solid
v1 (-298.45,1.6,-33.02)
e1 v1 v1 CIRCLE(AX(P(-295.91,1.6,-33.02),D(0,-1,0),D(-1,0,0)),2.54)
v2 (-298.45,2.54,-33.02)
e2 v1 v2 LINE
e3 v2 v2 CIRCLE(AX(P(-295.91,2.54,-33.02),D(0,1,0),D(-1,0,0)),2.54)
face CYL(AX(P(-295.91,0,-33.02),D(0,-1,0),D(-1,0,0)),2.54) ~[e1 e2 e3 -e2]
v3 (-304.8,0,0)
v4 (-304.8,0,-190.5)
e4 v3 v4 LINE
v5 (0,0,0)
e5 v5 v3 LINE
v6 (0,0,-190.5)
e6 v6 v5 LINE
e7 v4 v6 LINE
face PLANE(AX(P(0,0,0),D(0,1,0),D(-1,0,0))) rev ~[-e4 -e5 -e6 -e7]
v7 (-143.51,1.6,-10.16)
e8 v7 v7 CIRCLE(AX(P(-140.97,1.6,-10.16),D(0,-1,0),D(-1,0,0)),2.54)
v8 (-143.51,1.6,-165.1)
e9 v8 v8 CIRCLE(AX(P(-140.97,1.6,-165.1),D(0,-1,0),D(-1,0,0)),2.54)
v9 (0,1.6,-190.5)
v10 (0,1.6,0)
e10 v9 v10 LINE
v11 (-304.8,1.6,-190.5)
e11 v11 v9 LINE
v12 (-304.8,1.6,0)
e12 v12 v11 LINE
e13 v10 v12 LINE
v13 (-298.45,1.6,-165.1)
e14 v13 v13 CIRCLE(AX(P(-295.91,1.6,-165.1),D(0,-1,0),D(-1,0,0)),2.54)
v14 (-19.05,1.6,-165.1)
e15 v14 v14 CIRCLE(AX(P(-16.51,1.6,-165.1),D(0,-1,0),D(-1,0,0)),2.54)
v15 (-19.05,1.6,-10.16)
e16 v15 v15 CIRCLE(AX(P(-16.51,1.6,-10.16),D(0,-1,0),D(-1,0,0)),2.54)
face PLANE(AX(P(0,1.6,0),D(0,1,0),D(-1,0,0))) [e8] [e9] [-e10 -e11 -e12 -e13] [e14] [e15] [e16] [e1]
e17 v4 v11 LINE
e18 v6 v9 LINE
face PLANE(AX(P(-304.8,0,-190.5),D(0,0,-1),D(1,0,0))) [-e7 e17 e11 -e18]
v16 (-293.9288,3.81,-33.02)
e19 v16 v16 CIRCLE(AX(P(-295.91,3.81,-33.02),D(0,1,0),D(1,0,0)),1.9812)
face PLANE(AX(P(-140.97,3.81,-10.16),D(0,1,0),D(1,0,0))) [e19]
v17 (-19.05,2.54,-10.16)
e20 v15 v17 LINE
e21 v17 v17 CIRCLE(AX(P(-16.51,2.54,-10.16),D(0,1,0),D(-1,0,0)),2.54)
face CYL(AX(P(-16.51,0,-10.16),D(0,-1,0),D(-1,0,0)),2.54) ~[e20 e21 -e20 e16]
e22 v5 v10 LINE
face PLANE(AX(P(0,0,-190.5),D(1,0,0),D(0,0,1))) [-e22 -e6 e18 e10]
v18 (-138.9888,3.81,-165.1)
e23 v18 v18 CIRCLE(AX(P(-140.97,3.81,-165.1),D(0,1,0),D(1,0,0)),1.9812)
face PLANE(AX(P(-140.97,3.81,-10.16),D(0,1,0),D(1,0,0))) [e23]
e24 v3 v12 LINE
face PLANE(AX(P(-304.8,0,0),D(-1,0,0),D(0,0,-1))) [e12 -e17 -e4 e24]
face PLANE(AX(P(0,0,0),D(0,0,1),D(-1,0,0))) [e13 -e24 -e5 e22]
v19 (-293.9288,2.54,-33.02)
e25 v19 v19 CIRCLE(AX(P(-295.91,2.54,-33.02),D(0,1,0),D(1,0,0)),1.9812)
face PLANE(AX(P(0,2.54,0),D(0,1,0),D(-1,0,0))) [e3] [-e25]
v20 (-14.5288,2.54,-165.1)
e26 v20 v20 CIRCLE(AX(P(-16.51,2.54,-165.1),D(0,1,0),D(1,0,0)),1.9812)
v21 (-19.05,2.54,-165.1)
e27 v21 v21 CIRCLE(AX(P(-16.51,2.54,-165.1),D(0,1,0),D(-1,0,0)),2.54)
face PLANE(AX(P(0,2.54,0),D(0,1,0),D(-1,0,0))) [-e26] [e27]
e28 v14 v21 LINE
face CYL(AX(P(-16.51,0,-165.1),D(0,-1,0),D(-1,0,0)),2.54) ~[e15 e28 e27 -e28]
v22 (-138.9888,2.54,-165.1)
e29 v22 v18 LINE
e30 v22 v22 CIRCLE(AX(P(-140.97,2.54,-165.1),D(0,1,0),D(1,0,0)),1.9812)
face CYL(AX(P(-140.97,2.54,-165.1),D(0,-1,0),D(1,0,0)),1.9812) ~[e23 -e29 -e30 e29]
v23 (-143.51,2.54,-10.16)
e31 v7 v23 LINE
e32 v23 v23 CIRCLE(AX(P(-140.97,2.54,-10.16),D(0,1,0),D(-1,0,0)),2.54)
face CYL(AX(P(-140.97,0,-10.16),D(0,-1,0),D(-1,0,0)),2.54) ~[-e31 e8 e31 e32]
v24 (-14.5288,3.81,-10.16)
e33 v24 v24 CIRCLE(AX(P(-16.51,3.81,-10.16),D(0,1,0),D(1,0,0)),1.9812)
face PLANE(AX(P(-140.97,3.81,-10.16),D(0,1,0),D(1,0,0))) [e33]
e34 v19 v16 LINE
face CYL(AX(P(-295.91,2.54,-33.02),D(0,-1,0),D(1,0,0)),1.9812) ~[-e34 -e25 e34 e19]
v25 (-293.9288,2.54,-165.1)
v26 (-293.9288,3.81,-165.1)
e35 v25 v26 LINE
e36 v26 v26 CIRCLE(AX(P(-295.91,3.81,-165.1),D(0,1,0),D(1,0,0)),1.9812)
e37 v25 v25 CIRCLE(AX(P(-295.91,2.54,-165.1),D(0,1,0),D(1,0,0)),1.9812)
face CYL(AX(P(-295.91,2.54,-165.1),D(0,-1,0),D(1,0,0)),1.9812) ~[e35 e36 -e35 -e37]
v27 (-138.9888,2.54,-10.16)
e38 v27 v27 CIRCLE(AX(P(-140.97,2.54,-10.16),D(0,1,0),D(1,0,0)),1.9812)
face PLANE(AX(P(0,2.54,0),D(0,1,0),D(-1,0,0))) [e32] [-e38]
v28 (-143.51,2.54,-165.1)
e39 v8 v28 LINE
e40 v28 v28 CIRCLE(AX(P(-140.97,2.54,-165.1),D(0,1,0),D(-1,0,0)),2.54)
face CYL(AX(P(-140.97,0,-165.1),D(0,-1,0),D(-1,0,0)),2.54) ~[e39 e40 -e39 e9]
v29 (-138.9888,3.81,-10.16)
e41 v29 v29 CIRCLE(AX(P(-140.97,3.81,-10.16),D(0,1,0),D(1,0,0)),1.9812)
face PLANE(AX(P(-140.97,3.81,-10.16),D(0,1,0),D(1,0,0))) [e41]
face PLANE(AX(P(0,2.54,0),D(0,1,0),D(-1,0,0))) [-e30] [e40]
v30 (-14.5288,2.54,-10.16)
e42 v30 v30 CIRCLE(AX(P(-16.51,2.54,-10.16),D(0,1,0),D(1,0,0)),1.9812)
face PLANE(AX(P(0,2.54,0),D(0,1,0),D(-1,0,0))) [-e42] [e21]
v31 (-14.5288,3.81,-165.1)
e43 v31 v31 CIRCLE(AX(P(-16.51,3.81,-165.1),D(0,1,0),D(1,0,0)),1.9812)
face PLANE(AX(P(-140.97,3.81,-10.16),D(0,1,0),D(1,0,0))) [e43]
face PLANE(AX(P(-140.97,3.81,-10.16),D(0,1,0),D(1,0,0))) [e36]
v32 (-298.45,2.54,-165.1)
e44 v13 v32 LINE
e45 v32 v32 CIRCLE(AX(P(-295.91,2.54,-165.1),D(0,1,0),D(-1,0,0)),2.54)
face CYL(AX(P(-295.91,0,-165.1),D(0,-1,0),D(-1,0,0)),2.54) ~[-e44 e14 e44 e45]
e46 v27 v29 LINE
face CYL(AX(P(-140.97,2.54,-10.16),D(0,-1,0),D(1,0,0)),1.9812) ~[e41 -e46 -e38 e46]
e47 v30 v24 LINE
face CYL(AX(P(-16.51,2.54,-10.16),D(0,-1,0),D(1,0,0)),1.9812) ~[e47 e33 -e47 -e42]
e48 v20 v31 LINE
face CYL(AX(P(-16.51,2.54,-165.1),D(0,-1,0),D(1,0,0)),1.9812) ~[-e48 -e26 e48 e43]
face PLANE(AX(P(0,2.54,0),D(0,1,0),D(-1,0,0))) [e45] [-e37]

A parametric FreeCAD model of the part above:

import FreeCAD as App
import Part
import Sketcher
from FreeCAD import Vector
Q = App.Units.Quantity


def add_polygon(sketch, points):
    """Adds a closed chain of lines whose ends are joined by coincident constraints."""
    first, n = sketch.GeometryCount, len(points)
    for a, b in zip(points, points[1:] + points[:1]):
        sketch.addGeometry(Part.LineSegment(App.Vector(*a, 0), App.Vector(*b, 0)), False)
    for i in range(n):
        sketch.addConstraint(Sketcher.Constraint("Coincident", first + i, 2, first + (i + 1) % n, 1))

doc = App.newDocument("Part")
params = doc.addObject("Spreadsheet::Sheet", "Params")
for row, (alias, value) in enumerate([
    ("sketch1_width", "12 in"),
    ("sketch1_height", "7.5 in"),
    ("pad1_length", "0.0629921 in"),
    ("sketch2_diameter", "0.2 in"),
    ("sketch3_diameter", "0.2 in"),
    ("pad2_length", "0.1 in"),
    ("sketch4_diameter", "0.156 in"),
    ("pad3_length", "0.05 in"),
], start=1):
    params.set(f"A{row}", alias)
    params.set(f"B{row}", "=" + value)
    params.setAlias(f"B{row}", alias)

body = doc.addObject("PartDesign::Body", "Body")

# Sketch on XZ plane
sketch1 = doc.addObject("Sketcher::SketchObject", "Sketch")
body.addObject(sketch1)
sketch1.AttachmentSupport = (doc.XZ_Plane, [""])
sketch1.MapMode = "FlatFace"
add_polygon(sketch1, [(-305, 0), (0, 0), (0, -190), (-305, -190)])  # lines 0-3
sketch1.addConstraint([
    Sketcher.Constraint("Horizontal", 0),
    Sketcher.Constraint("Vertical", 1),
    Sketcher.Constraint("Horizontal", 2),
    Sketcher.Constraint("Vertical", 3),
    Sketcher.Constraint("Coincident", 0, 2, -1, 1),
    Sketcher.Constraint("DistanceX", 0, 1, 0, 2, Q("12 in")),
    Sketcher.Constraint("DistanceY", 1, 2, 1, 1, Q("7.5 in")),
])
sketch1.setExpression("Constraints[9]", "Params.sketch1_width")
sketch1.setExpression("Constraints[10]", "Params.sketch1_height")
pad1 = doc.addObject("PartDesign::Pad", "Pad")
body.addObject(pad1)
pad1.Profile = sketch1
pad1.setExpression("Length", "Params.pad1_length")
pad1.Reversed = True

# Sketch on XZ plane
sketch2 = doc.addObject("Sketcher::SketchObject", "Sketch001")
body.addObject(sketch2)
sketch2.AttachmentSupport = (doc.XZ_Plane, [""])
sketch2.MapMode = "FlatFace"
sketch2.AttachmentOffset = App.Placement(Vector(0, 0, -0.0629921 * 25.4), App.Rotation())
sketch2.addGeometry([
    Part.Circle(Vector(-141, -10.2, 0), Vector(0, 0, 1), 2.5),  # 0
    Part.Circle(Vector(-141, -165.1, 0), Vector(0, 0, 1), 2.5),  # 1
    Part.Circle(Vector(-16.5, -10.2, 0), Vector(0, 0, 1), 2.5),  # 2
    Part.Circle(Vector(-295.9, -33, 0), Vector(0, 0, 1), 2.5),  # 3
    Part.Circle(Vector(-295.9, -165.1, 0), Vector(0, 0, 1), 2.5),  # 4
    Part.Circle(Vector(-16.5, -165.1, 0), Vector(0, 0, 1), 2.5),  # 5
], False)
sketch2.addConstraint([
    Sketcher.Constraint("Equal", 0, 1),
    Sketcher.Constraint("Equal", 1, 2),
    Sketcher.Constraint("Equal", 2, 3),
    Sketcher.Constraint("Equal", 3, 4),
    Sketcher.Constraint("Equal", 4, 5),
    Sketcher.Constraint("Horizontal", 0, 3, 2, 3),
    Sketcher.Constraint("Horizontal", 1, 3, 4, 3),
    Sketcher.Constraint("Horizontal", 4, 3, 5, 3),
    Sketcher.Constraint("Vertical", 0, 3, 1, 3),
    Sketcher.Constraint("Vertical", 3, 3, 4, 3),
    Sketcher.Constraint("Vertical", 2, 3, 5, 3),
    Sketcher.Constraint("Diameter", 0, Q("0.2 in")),
    Sketcher.Constraint("DistanceX", 3, 3, 2, 3, Q("11 in")),
    Sketcher.Constraint("DistanceY", 0, 3, -1, 1, Q("0.4 in")),
    Sketcher.Constraint("DistanceY", 1, 3, 0, 3, Q("6.1 in")),
    Sketcher.Constraint("DistanceX", 3, 3, 0, 3, Q("6.1 in")),
    Sketcher.Constraint("DistanceY", 3, 3, 0, 3, Q("0.9 in")),
    Sketcher.Constraint("DistanceX", 2, 3, -1, 1, Q("0.65 in")),
])
sketch2.setExpression("Constraints[11]", "Params.sketch2_diameter")
pocket1 = doc.addObject("PartDesign::Pocket", "Pocket")
body.addObject(pocket1)
pocket1.Profile = sketch2
pocket1.Type = "ThroughAll"
pocket1.Reversed = True

# Sketch on XZ plane
sketch3 = doc.addObject("Sketcher::SketchObject", "Sketch002")
body.addObject(sketch3)
sketch3.AttachmentSupport = (doc.XZ_Plane, [""])
sketch3.MapMode = "FlatFace"
sketch3.addGeometry([
    Part.Circle(Vector(-16.5, -165.1, 0), Vector(0, 0, 1), 2.5),  # 0
    Part.Circle(Vector(-16.5, -10.2, 0), Vector(0, 0, 1), 2.5),  # 1
    Part.Circle(Vector(-141, -10.2, 0), Vector(0, 0, 1), 2.5),  # 2
    Part.Circle(Vector(-295.9, -33, 0), Vector(0, 0, 1), 2.5),  # 3
    Part.Circle(Vector(-295.9, -165.1, 0), Vector(0, 0, 1), 2.5),  # 4
    Part.Circle(Vector(-141, -165.1, 0), Vector(0, 0, 1), 2.5),  # 5
], False)
sketch3.addConstraint([
    Sketcher.Constraint("Equal", 0, 1),
    Sketcher.Constraint("Equal", 1, 2),
    Sketcher.Constraint("Equal", 2, 3),
    Sketcher.Constraint("Equal", 3, 4),
    Sketcher.Constraint("Equal", 4, 5),
    Sketcher.Constraint("Horizontal", 1, 3, 2, 3),
    Sketcher.Constraint("Horizontal", 0, 3, 4, 3),
    Sketcher.Constraint("Horizontal", 4, 3, 5, 3),
    Sketcher.Constraint("Vertical", 0, 3, 1, 3),
    Sketcher.Constraint("Vertical", 3, 3, 4, 3),
    Sketcher.Constraint("Vertical", 2, 3, 5, 3),
    Sketcher.Constraint("Diameter", 0, Q("0.2 in")),
    Sketcher.Constraint("DistanceX", 3, 3, 1, 3, Q("11 in")),
    Sketcher.Constraint("DistanceY", 0, 3, -1, 1, Q("6.5 in")),
    Sketcher.Constraint("DistanceY", 1, 3, -1, 1, Q("0.4 in")),
    Sketcher.Constraint("DistanceY", 3, 3, -1, 1, Q("1.3 in")),
    Sketcher.Constraint("DistanceX", 2, 3, 1, 3, Q("4.9 in")),
    Sketcher.Constraint("DistanceX", 0, 3, -1, 1, Q("0.65 in")),
])
sketch3.setExpression("Constraints[11]", "Params.sketch3_diameter")
pad2 = doc.addObject("PartDesign::Pad", "Pad001")
body.addObject(pad2)
pad2.Profile = sketch3
pad2.setExpression("Length", "Params.pad2_length")
pad2.Reversed = True

# Sketch on XZ plane
sketch4 = doc.addObject("Sketcher::SketchObject", "Sketch003")
body.addObject(sketch4)
sketch4.AttachmentSupport = (doc.XZ_Plane, [""])
sketch4.MapMode = "FlatFace"
sketch4.AttachmentOffset = App.Placement(Vector(0, 0, -0.1 * 25.4), App.Rotation())
sketch4.addGeometry([
    Part.Circle(Vector(-141, -10.2, 0), Vector(0, 0, 1), 2),  # 0
    Part.Circle(Vector(-295.9, -33, 0), Vector(0, 0, 1), 2),  # 1
    Part.Circle(Vector(-141, -165.1, 0), Vector(0, 0, 1), 2),  # 2
    Part.Circle(Vector(-16.5, -165.1, 0), Vector(0, 0, 1), 2),  # 3
    Part.Circle(Vector(-295.9, -165.1, 0), Vector(0, 0, 1), 2),  # 4
    Part.Circle(Vector(-16.5, -10.2, 0), Vector(0, 0, 1), 2),  # 5
], False)
sketch4.addConstraint([
    Sketcher.Constraint("Equal", 0, 1),
    Sketcher.Constraint("Equal", 1, 2),
    Sketcher.Constraint("Equal", 2, 3),
    Sketcher.Constraint("Equal", 3, 4),
    Sketcher.Constraint("Equal", 4, 5),
    Sketcher.Constraint("Horizontal", 2, 3, 3, 3),
    Sketcher.Constraint("Horizontal", 3, 3, 4, 3),
    Sketcher.Constraint("Horizontal", 0, 3, 5, 3),
    Sketcher.Constraint("Vertical", 0, 3, 2, 3),
    Sketcher.Constraint("Vertical", 1, 3, 4, 3),
    Sketcher.Constraint("Vertical", 3, 3, 5, 3),
    Sketcher.Constraint("Diameter", 0, Q("0.156 in")),
    Sketcher.Constraint("DistanceX", 1, 3, 3, 3, Q("11 in")),
    Sketcher.Constraint("DistanceY", 0, 3, -1, 1, Q("0.4 in")),
    Sketcher.Constraint("DistanceY", 1, 3, -1, 1, Q("1.3 in")),
    Sketcher.Constraint("DistanceY", 2, 3, -1, 1, Q("6.5 in")),
    Sketcher.Constraint("DistanceX", 1, 3, 0, 3, Q("6.1 in")),
    Sketcher.Constraint("DistanceX", 0, 3, -1, 1, Q("5.55 in")),
])
sketch4.setExpression("Constraints[11]", "Params.sketch4_diameter")
pad3 = doc.addObject("PartDesign::Pad", "Pad002")
body.addObject(pad3)
pad3.Profile = sketch4
pad3.setExpression("Length", "Params.pad3_length")
pad3.Reversed = True

doc.recompute()
